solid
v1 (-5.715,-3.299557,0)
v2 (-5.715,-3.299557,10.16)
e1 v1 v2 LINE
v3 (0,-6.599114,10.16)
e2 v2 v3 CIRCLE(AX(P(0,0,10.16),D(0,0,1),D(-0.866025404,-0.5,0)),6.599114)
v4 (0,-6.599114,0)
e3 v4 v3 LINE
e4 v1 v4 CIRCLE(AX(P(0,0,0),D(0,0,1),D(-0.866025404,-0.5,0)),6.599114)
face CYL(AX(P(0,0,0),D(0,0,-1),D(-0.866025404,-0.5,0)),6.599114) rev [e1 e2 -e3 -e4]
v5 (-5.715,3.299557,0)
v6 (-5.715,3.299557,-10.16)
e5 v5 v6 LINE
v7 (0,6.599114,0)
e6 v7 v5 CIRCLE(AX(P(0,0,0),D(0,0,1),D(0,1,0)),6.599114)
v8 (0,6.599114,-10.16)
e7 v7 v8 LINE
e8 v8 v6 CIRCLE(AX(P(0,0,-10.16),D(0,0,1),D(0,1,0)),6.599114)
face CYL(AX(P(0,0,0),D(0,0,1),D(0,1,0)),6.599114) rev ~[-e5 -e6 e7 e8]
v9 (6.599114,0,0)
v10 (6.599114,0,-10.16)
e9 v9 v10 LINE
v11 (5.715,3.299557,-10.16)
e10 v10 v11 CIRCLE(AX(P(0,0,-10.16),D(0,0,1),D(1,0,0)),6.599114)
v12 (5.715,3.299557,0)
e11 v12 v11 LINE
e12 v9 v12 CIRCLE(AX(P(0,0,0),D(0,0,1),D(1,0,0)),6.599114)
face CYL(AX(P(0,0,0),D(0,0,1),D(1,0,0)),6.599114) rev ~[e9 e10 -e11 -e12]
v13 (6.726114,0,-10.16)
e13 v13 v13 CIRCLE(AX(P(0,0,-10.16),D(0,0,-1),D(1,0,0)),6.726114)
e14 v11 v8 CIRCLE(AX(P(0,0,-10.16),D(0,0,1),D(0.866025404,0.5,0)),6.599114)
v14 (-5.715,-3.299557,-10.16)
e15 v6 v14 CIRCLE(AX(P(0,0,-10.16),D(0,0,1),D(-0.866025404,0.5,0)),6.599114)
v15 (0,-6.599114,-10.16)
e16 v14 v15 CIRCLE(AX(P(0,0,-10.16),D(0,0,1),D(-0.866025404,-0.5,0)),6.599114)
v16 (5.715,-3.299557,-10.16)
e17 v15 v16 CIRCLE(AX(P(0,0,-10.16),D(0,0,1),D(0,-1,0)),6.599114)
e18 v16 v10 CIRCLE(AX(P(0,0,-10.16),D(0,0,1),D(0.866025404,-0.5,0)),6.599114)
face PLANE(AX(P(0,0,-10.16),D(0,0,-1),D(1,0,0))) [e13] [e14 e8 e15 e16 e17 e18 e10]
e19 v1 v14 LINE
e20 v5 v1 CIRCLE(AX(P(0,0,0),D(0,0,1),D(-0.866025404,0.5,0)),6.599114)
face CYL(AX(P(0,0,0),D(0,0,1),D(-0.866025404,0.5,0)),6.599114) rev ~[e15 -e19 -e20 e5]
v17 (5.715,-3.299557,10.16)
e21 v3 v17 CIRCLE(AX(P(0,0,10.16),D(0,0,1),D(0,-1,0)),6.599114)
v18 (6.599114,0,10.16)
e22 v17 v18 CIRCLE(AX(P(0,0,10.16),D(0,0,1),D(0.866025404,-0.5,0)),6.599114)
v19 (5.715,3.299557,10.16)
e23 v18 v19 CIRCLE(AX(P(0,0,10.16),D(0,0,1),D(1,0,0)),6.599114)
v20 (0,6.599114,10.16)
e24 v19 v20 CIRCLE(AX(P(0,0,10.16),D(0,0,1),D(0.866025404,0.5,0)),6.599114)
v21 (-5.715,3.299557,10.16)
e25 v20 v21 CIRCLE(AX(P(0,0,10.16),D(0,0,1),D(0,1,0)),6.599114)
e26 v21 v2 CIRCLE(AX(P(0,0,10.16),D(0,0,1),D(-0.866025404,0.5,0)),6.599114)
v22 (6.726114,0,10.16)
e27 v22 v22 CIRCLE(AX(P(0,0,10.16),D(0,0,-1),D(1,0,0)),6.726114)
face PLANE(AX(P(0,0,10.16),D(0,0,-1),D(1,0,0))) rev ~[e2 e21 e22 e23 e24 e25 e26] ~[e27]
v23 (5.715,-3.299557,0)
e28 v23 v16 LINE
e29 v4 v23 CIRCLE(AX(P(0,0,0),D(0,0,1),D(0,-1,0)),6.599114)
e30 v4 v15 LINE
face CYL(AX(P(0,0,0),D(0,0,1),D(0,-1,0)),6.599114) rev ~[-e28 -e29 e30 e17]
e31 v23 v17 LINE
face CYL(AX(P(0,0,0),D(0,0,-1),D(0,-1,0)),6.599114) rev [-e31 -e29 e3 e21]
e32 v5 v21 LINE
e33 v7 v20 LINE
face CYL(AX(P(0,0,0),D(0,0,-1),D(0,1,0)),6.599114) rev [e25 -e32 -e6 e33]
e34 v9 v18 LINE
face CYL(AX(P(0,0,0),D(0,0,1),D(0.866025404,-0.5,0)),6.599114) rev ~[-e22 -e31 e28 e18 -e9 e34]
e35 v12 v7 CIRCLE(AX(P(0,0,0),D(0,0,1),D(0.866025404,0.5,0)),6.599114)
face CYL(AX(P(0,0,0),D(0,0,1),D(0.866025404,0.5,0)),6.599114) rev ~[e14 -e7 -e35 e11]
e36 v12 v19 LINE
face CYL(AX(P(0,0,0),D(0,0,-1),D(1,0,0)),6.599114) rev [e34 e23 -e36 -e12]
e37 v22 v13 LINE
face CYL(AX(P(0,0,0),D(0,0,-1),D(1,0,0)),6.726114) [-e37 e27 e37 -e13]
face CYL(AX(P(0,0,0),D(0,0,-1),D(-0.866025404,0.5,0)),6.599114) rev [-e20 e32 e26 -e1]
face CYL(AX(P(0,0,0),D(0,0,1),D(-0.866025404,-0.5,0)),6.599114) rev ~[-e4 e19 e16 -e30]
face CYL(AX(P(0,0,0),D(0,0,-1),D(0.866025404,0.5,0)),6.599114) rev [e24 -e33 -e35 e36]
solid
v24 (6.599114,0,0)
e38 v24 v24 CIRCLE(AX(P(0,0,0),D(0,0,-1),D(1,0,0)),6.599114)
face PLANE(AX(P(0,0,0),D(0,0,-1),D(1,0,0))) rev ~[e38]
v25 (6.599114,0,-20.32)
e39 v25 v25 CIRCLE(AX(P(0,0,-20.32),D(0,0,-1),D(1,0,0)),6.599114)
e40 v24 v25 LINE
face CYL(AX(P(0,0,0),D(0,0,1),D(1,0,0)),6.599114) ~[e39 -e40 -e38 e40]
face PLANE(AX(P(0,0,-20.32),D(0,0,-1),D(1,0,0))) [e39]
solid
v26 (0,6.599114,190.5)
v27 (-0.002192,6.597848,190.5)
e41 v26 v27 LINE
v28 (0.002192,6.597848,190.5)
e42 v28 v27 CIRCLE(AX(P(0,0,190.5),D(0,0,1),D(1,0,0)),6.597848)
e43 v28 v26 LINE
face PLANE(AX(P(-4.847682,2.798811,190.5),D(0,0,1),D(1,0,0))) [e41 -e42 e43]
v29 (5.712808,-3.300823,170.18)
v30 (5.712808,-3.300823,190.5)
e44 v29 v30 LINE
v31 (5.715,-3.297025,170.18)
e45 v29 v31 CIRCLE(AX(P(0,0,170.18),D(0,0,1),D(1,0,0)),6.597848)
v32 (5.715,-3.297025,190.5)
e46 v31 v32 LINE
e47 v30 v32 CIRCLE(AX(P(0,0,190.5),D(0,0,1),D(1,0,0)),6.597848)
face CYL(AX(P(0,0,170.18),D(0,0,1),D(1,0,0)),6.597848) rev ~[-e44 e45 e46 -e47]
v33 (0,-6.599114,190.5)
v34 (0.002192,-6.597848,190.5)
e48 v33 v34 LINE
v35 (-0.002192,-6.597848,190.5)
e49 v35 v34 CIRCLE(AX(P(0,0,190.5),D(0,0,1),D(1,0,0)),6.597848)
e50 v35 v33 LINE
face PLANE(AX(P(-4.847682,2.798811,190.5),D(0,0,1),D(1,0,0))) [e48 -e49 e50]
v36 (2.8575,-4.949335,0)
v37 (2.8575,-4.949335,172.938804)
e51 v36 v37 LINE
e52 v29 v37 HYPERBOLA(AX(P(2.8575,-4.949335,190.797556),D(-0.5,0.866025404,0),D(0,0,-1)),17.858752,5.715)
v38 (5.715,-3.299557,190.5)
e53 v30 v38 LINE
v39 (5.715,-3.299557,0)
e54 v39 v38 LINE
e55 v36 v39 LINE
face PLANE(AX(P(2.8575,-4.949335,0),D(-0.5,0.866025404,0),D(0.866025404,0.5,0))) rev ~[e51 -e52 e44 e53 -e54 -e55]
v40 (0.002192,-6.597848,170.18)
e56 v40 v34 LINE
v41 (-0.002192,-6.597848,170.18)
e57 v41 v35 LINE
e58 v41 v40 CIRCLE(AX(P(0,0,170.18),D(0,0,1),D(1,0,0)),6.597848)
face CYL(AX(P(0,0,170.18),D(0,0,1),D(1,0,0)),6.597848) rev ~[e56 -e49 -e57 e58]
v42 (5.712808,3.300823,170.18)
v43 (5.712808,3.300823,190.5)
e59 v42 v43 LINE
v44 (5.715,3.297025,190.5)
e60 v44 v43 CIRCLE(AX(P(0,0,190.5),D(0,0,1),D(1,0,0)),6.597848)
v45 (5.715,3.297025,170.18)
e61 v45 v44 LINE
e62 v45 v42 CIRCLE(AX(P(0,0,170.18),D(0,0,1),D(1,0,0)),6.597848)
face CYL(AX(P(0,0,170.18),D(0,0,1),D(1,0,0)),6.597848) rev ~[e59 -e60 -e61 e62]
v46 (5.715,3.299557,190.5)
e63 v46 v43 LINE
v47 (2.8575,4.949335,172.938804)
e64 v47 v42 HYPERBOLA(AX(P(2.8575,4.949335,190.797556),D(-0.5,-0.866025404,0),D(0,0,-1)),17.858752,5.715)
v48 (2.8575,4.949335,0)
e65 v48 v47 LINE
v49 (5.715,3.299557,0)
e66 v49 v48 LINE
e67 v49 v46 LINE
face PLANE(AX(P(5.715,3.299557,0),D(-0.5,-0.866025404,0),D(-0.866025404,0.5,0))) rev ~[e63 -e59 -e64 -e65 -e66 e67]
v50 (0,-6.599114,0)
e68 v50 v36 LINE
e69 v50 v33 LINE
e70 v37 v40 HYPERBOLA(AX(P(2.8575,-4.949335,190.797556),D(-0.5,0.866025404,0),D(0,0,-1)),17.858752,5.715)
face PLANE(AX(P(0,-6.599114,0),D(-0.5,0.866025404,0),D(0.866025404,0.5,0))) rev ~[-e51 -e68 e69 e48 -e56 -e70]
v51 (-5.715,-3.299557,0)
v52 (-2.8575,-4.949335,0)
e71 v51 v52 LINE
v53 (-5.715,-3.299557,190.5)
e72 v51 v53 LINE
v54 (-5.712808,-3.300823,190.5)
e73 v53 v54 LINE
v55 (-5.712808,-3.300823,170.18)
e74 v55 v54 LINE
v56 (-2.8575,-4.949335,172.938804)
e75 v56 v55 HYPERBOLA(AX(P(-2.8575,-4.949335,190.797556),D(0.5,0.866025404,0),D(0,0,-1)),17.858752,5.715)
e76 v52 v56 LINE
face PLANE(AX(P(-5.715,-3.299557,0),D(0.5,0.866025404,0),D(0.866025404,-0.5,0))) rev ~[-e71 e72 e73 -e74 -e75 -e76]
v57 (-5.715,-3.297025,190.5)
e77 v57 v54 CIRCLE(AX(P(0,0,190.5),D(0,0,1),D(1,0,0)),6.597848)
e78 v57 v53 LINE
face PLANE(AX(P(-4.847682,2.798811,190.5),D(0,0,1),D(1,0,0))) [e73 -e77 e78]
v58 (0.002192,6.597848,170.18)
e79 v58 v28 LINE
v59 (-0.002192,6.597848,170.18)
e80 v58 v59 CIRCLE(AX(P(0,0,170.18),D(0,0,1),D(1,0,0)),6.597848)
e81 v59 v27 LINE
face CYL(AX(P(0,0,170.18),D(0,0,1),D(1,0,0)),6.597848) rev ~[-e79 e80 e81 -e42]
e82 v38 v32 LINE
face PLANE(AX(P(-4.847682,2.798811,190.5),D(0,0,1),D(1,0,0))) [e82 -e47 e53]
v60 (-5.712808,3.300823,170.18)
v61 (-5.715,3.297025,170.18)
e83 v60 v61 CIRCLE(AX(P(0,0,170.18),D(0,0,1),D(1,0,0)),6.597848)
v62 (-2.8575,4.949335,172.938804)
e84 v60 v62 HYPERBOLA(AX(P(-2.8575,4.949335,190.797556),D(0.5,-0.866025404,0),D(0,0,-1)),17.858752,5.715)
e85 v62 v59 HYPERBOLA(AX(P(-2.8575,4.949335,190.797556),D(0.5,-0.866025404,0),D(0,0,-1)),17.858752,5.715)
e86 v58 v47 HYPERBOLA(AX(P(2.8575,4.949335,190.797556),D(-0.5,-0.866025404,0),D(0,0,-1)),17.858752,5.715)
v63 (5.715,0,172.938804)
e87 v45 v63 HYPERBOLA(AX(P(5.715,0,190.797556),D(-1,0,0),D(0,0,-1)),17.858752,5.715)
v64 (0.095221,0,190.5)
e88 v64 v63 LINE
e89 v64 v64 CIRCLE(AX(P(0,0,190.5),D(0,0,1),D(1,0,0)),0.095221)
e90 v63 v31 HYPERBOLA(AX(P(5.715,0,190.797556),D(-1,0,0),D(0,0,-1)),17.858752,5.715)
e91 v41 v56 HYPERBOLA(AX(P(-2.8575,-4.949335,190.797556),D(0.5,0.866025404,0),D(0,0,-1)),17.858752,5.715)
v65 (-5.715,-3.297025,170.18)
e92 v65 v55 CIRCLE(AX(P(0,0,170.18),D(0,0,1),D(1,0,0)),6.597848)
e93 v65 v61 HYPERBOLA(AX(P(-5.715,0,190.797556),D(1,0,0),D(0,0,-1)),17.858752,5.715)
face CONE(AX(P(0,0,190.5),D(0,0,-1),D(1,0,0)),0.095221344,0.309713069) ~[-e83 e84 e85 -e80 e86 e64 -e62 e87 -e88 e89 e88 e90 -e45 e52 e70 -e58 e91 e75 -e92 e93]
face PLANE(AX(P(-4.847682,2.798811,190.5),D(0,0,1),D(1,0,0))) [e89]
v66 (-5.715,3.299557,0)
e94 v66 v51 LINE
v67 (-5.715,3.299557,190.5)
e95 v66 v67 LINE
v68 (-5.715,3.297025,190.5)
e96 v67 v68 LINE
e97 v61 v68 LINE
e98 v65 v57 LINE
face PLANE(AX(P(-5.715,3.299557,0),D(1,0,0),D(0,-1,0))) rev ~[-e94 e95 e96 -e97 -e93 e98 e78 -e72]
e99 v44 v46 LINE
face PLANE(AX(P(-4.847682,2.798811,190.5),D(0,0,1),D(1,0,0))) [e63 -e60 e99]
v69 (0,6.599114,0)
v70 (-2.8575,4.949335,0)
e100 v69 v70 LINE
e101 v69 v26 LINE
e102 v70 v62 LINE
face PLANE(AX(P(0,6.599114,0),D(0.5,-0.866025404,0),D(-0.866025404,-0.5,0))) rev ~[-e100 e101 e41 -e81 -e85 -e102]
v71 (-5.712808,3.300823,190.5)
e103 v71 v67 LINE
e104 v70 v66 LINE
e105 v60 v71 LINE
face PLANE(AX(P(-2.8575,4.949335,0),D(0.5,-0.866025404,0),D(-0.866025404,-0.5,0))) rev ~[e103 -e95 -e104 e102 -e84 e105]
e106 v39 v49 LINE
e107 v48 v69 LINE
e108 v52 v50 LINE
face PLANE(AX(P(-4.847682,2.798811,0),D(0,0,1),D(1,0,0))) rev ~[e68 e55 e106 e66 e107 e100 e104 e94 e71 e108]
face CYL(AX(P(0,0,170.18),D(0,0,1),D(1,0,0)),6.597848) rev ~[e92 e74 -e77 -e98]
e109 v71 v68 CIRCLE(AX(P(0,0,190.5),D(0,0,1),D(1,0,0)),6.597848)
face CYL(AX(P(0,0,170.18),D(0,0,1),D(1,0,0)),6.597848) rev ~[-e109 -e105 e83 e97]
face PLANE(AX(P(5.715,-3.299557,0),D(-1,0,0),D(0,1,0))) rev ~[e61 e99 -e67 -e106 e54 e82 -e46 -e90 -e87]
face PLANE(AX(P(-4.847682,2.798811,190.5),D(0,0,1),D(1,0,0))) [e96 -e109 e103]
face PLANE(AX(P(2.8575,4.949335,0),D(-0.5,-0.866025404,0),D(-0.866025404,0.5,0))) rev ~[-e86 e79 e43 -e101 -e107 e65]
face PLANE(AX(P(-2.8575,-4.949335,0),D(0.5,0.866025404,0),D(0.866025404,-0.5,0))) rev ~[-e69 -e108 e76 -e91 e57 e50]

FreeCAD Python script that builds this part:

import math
import FreeCAD as App
import Part
import Sketcher
from FreeCAD import Vector
Q = App.Units.Quantity


def add_polygon(sketch, points):
    """Adds a closed chain of lines whose ends are joined by coincident constraints."""
    first, n = sketch.GeometryCount, len(points)
    for a, b in zip(points, points[1:] + points[:1]):
        sketch.addGeometry(Part.LineSegment(App.Vector(*a, 0), App.Vector(*b, 0)), False)
    for i in range(n):
        sketch.addConstraint(Sketcher.Constraint("Coincident", first + i, 2, first + (i + 1) % n, 1))

doc = App.newDocument("Part")
body = doc.addObject("PartDesign::Body", "Body")

# Sketch on XY plane
sketch1 = body.newObject("Sketcher::SketchObject", "Sketch")
sketch1.AttachmentSupport = (doc.getObject("XY_Plane"), [""])
sketch1.MapMode = "FlatFace"
add_polygon(sketch1, [(-2.9, 4.9), (-5.7, 3.3), (-5.7, -3.3), (-2.9, -4.9), (0, -6.6), (2.9, -4.9), (5.7, -3.3), (5.7, 3.3), (2.9, 4.9), (0, 6.6)])  # lines 0-9
sketch1.addConstraint(Sketcher.Constraint("Vertical", 1))
sketch1.addConstraint(Sketcher.Constraint("Vertical", 6))
sketch1.addConstraint(Sketcher.Constraint("Symmetric", 0, 2, 5, 2, -1, 1))
sketch1.addConstraint(Sketcher.Constraint("Symmetric", 2, 2, 7, 2, -1, 1))
sketch1.addConstraint(Sketcher.Constraint("Symmetric", 3, 2, 8, 2, -1, 1))
sketch1.addConstraint(Sketcher.Constraint("Symmetric", 4, 2, 9, 2, -1, 1))
sketch1.addConstraint(Sketcher.Constraint("Symmetric", 2, 2, 4, 2, -2))
sketch1.addConstraint(Sketcher.Constraint("PointOnObject", 3, 2, -2))
sketch1.addConstraint(Sketcher.Constraint("Parallel", 2, 3))
sketch1.addConstraint(Sketcher.Constraint("Parallel", 0, 4))
sketch1.addConstraint(Sketcher.Constraint("Parallel", 3, 7))
sketch1.addConstraint(Sketcher.Constraint("Equal", 2, 3))
sketch1.addConstraint(Sketcher.Constraint("Angle", 0, Q("-150 deg")))
sketch1.addConstraint(Sketcher.Constraint("DistanceX", 1, 2, 5, 2, Q("0.45 in")))
sketch1.addConstraint(Sketcher.Constraint("DistanceY", 1, 2, 1, 1, Q("6.599114 mm")))
pad1 = body.newObject("PartDesign::Pad", "Pad")
pad1.Profile = sketch1
pad1.Length = Q("7.5 in")

# Sketch on XZ plane
sketch2 = body.newObject("Sketcher::SketchObject", "Sketch001")
sketch2.AttachmentSupport = (doc.getObject("XZ_Plane"), [""])
sketch2.MapMode = "FlatFace"
add_polygon(sketch2, [(7, 190), (0, 190), (7, 170)])  # lines 0-2
sketch2.addConstraint(Sketcher.Constraint("Horizontal", 0))
sketch2.addConstraint(Sketcher.Constraint("Vertical", 2))
sketch2.addConstraint(Sketcher.Constraint("DistanceY", 2, 1, 2, 2, Q("0.8 in")))
sketch2.addConstraint(Sketcher.Constraint("DistanceY", -1, 1, 0, 2, Q("7.5 in")))
sketch2.addConstraint(Sketcher.Constraint("Distance", 1, Q("21.335101 mm")))
sketch2.addConstraint(Sketcher.Constraint("DistanceX", -1, 1, 0, 2, Q("0.095221 mm")))
groove = body.newObject("PartDesign::Groove", "Groove")
groove.Profile = sketch2
groove.ReferenceAxis = (sketch2, ["V_Axis"])
groove.Angle = 360
body2 = doc.addObject("PartDesign::Body", "Body001")

# Sketch on XY plane
sketch3 = body2.newObject("Sketcher::SketchObject", "Sketch002")
sketch3.AttachmentSupport = (doc.getObject("XY_Plane001"), [""])
sketch3.MapMode = "FlatFace"
sketch3.addGeometry(Part.Circle(Vector(0, 0, 0), Vector(0, 0, 1), 6.7), False)
sketch3.addGeometry(Part.ArcOfCircle(Part.Circle(Vector(0, 0, 0), Vector(0, 0, 1), 6.6), math.radians(-90), math.radians(-30)), False)
sketch3.addGeometry(Part.ArcOfCircle(Part.Circle(Vector(0, 0, 0), Vector(0, 0, 1), 6.6), math.radians(-30), math.radians(0)), False)
sketch3.addGeometry(Part.ArcOfCircle(Part.Circle(Vector(0, 0, 0), Vector(0, 0, 1), 6.6), math.radians(0), math.radians(30)), False)
sketch3.addGeometry(Part.ArcOfCircle(Part.Circle(Vector(0, 0, 0), Vector(0, 0, 1), 6.6), math.radians(30), math.radians(90)), False)
sketch3.addGeometry(Part.ArcOfCircle(Part.Circle(Vector(0, 0, 0), Vector(0, 0, 1), 6.6), math.radians(90), math.radians(150)), False)
sketch3.addGeometry(Part.ArcOfCircle(Part.Circle(Vector(0, 0, 0), Vector(0, 0, 1), 6.6), math.radians(150), math.radians(210)), False)
sketch3.addGeometry(Part.ArcOfCircle(Part.Circle(Vector(0, 0, 0), Vector(0, 0, 1), 6.6), math.radians(-150), math.radians(-90)), False)
sketch3.addConstraint(Sketcher.Constraint("Tangent", 1, 2, 2, 1))
sketch3.addConstraint(Sketcher.Constraint("Tangent", 2, 2, 3, 1))
sketch3.addConstraint(Sketcher.Constraint("Tangent", 3, 2, 4, 1))
sketch3.addConstraint(Sketcher.Constraint("Tangent", 4, 2, 5, 1))
sketch3.addConstraint(Sketcher.Constraint("Tangent", 5, 2, 6, 1))
sketch3.addConstraint(Sketcher.Constraint("Tangent", 6, 2, 7, 1))
sketch3.addConstraint(Sketcher.Constraint("Tangent", 7, 2, 1, 1))
sketch3.addConstraint(Sketcher.Constraint("Coincident", 0, 3, -1, 1))
sketch3.addConstraint(Sketcher.Constraint("Coincident", 1, 3, -1, 1))
sketch3.addConstraint(Sketcher.Constraint("Coincident", 3, 3, -1, 1))
sketch3.addConstraint(Sketcher.Constraint("Coincident", 5, 3, -1, 1))
sketch3.addConstraint(Sketcher.Constraint("PointOnObject", 2, 2, -1))
sketch3.addConstraint(Sketcher.Constraint("PointOnObject", 4, 2, -2))
sketch3.addConstraint(Sketcher.Constraint("PointOnObject", 7, 2, -2))
sketch3.addConstraint(Sketcher.Constraint("Horizontal", 3, 2, 5, 2))
sketch3.addConstraint(Sketcher.Constraint("Horizontal", 1, 2, 6, 2))
sketch3.addConstraint(Sketcher.Constraint("Vertical", 1, 2, 3, 2))
sketch3.addConstraint(Sketcher.Constraint("DistanceX", -1, 1, 1, 2, Q("0.225 in")))
sketch3.addConstraint(Sketcher.Constraint("Diameter", 0, Q("13.452227 mm")))
sketch3.addConstraint(Sketcher.Constraint("Radius", 1, Q("6.599114 mm")))
pad2 = body2.newObject("PartDesign::Pad", "Pad001")
pad2.Profile = sketch3
pad2.Length = Q("0.8 in")
pad2.Midplane = True
body3 = doc.addObject("PartDesign::Body", "Body002")

# Sketch on XY plane
sketch4 = body3.newObject("Sketcher::SketchObject", "Sketch003")
sketch4.AttachmentSupport = (doc.getObject("XY_Plane002"), [""])
sketch4.MapMode = "FlatFace"
sketch4.addGeometry(Part.Circle(Vector(0, 0, 0), Vector(0, 0, 1), 7), False)
sketch4.addConstraint(Sketcher.Constraint("Coincident", 0, 3, -1, 1))
sketch4.addConstraint(Sketcher.Constraint("Diameter", 0, Q("13.198227 mm")))
pad3 = body3.newObject("PartDesign::Pad", "Pad002")
pad3.Profile = sketch4
pad3.Length = Q("0.8 in")
pad3.Reversed = True

doc.recompute()
